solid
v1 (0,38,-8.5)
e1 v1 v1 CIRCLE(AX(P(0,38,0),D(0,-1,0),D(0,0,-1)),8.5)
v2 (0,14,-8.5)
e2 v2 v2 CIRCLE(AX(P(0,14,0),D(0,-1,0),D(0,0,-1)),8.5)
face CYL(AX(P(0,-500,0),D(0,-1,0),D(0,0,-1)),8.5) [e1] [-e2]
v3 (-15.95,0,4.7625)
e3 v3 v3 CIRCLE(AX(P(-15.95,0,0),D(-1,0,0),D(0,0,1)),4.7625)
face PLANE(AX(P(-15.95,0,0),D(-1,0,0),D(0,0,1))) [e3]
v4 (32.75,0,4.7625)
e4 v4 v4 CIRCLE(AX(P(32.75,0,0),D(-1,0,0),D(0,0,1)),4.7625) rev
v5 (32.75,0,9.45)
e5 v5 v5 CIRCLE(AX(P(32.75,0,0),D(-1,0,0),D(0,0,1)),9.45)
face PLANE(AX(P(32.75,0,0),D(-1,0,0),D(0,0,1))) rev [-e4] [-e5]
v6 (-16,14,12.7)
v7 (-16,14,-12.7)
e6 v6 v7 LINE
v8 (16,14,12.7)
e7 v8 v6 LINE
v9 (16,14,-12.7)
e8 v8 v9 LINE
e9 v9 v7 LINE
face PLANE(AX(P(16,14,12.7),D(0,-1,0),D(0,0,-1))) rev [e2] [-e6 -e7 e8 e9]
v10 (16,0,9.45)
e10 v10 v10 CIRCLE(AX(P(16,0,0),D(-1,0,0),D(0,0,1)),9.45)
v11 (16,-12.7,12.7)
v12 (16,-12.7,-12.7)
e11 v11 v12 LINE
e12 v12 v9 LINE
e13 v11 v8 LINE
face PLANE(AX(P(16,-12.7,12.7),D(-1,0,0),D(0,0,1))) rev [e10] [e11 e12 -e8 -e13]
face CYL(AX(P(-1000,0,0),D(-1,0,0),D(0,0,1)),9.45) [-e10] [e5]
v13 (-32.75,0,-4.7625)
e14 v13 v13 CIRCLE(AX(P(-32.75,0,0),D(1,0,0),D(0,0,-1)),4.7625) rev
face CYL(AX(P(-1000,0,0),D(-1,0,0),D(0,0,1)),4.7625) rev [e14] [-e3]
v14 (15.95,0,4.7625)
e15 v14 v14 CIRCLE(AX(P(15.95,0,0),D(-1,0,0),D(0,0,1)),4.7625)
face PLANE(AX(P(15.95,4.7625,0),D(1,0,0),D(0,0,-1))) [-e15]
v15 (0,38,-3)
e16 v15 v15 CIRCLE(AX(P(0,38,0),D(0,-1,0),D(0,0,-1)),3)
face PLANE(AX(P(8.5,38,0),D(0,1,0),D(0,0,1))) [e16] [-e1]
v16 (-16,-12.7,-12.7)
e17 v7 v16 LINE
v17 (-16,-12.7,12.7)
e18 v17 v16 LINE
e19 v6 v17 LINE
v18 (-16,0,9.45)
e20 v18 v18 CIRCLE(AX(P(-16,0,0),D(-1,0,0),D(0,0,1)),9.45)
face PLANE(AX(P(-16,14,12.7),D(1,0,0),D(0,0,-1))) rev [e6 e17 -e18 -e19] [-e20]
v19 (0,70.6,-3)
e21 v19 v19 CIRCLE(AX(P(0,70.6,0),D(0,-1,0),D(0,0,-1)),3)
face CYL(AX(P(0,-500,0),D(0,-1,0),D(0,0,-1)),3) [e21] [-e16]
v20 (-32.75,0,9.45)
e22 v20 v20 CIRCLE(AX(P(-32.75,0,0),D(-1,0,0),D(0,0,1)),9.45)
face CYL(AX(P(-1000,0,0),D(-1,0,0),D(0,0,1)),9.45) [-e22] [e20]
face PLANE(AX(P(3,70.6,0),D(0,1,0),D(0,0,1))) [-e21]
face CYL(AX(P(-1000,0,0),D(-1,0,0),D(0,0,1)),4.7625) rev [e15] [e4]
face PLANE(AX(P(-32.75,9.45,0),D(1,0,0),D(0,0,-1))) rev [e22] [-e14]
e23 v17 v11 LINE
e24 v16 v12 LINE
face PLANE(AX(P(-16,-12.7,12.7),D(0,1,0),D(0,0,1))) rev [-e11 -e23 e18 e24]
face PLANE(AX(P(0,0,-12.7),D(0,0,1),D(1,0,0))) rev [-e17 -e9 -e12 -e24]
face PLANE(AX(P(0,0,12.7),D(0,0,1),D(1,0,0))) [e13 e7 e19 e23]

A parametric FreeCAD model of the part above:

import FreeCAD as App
import Part
import Sketcher
Q = App.Units.Quantity

doc = App.newDocument("Part")
body = doc.addObject("PartDesign::Body", "Body")

sketch1 = body.newObject("Sketcher::SketchObject", "Sketch")
sketch1.AttachmentSupport = (doc.getObject("XY_Plane"), [""])
sketch1.MapMode = "FlatFace"
sketch1.addGeometry(Part.LineSegment(App.Vector(-16, 14, 0), App.Vector(-16, -13, 0)), False)
sketch1.addGeometry(Part.LineSegment(App.Vector(-16, -13, 0), App.Vector(16, -13, 0)), False)
sketch1.addGeometry(Part.LineSegment(App.Vector(16, -13, 0), App.Vector(16, 14, 0)), False)
sketch1.addGeometry(Part.LineSegment(App.Vector(16, 14, 0), App.Vector(-16, 14, 0)), False)
sketch1.addConstraint(Sketcher.Constraint("Coincident", 0, 2, 1, 1))
sketch1.addConstraint(Sketcher.Constraint("Coincident", 1, 2, 2, 1))
sketch1.addConstraint(Sketcher.Constraint("Coincident", 2, 2, 3, 1))
sketch1.addConstraint(Sketcher.Constraint("Coincident", 3, 2, 0, 1))
sketch1.addConstraint(Sketcher.Constraint("Vertical", 0))
sketch1.addConstraint(Sketcher.Constraint("Horizontal", 1))
sketch1.addConstraint(Sketcher.Constraint("Vertical", 2))
sketch1.addConstraint(Sketcher.Constraint("Horizontal", 3))
sketch1.addConstraint(Sketcher.Constraint("DistanceX", 1, 1, 1, 2, Q("32 mm")))
sketch1.addConstraint(Sketcher.Constraint("DistanceY", 0, 2, 0, 1, Q("26.7 mm")))
sketch1.addConstraint(Sketcher.Constraint("DistanceX", 0, 2, -1, 1, Q("16 mm")))
sketch1.addConstraint(Sketcher.Constraint("DistanceY", -1, 1, 2, 2, Q("14 mm")))
pad1 = body.newObject("PartDesign::Pad", "Pad")
pad1.Profile = sketch1
pad1.Length = 25.4
pad1.Midplane = True

sketch2 = body.newObject("Sketcher::SketchObject", "Sketch001")
sketch2.AttachmentSupport = (doc.getObject("XY_Plane"), [""])
sketch2.MapMode = "FlatFace"
sketch2.addGeometry(Part.LineSegment(App.Vector(16, 9, 0), App.Vector(16, 0, 0)), False)
sketch2.addGeometry(Part.LineSegment(App.Vector(16, 0, 0), App.Vector(33, 0, 0)), False)
sketch2.addGeometry(Part.LineSegment(App.Vector(33, 0, 0), App.Vector(33, 9, 0)), False)
sketch2.addGeometry(Part.LineSegment(App.Vector(33, 9, 0), App.Vector(16, 9, 0)), False)
sketch2.addConstraint(Sketcher.Constraint("Coincident", 0, 2, 1, 1))
sketch2.addConstraint(Sketcher.Constraint("Coincident", 1, 2, 2, 1))
sketch2.addConstraint(Sketcher.Constraint("Coincident", 2, 2, 3, 1))
sketch2.addConstraint(Sketcher.Constraint("Coincident", 3, 2, 0, 1))
sketch2.addConstraint(Sketcher.Constraint("Vertical", 0))
sketch2.addConstraint(Sketcher.Constraint("Horizontal", 1))
sketch2.addConstraint(Sketcher.Constraint("Vertical", 2))
sketch2.addConstraint(Sketcher.Constraint("Horizontal", 3))
sketch2.addConstraint(Sketcher.Constraint("PointOnObject", 0, 2, -1))
sketch2.addConstraint(Sketcher.Constraint("DistanceX", -1, 1, 0, 2, Q("16 mm")))
sketch2.addConstraint(Sketcher.Constraint("DistanceX", 1, 1, 1, 2, Q("16.75 mm")))
sketch2.addConstraint(Sketcher.Constraint("DistanceY", 0, 2, 0, 1, Q("9.45 mm")))
revolution = body.newObject("PartDesign::Revolution", "Revolution")
revolution.Profile = sketch2
revolution.ReferenceAxis = (sketch2, ["H_Axis"])
revolution.Angle = 360

sketch3 = body.newObject("Sketcher::SketchObject", "Sketch002")
sketch3.AttachmentSupport = (doc.getObject("XY_Plane"), [""])
sketch3.MapMode = "FlatFace"
sketch3.addGeometry(Part.LineSegment(App.Vector(-33, 9, 0), App.Vector(-33, 0, 0)), False)
sketch3.addGeometry(Part.LineSegment(App.Vector(-33, 0, 0), App.Vector(-16, 0, 0)), False)
sketch3.addGeometry(Part.LineSegment(App.Vector(-16, 0, 0), App.Vector(-16, 9, 0)), False)
sketch3.addGeometry(Part.LineSegment(App.Vector(-16, 9, 0), App.Vector(-33, 9, 0)), False)
sketch3.addConstraint(Sketcher.Constraint("Coincident", 0, 2, 1, 1))
sketch3.addConstraint(Sketcher.Constraint("Coincident", 1, 2, 2, 1))
sketch3.addConstraint(Sketcher.Constraint("Coincident", 2, 2, 3, 1))
sketch3.addConstraint(Sketcher.Constraint("Coincident", 3, 2, 0, 1))
sketch3.addConstraint(Sketcher.Constraint("Vertical", 0))
sketch3.addConstraint(Sketcher.Constraint("Horizontal", 1))
sketch3.addConstraint(Sketcher.Constraint("Vertical", 2))
sketch3.addConstraint(Sketcher.Constraint("Horizontal", 3))
sketch3.addConstraint(Sketcher.Constraint("PointOnObject", 0, 2, -1))
sketch3.addConstraint(Sketcher.Constraint("DistanceX", 1, 2, -1, 1, Q("16 mm")))
sketch3.addConstraint(Sketcher.Constraint("DistanceX", 1, 1, 1, 2, Q("16.75 mm")))
sketch3.addConstraint(Sketcher.Constraint("DistanceY", 0, 2, 0, 1, Q("9.45 mm")))
revolution2 = body.newObject("PartDesign::Revolution", "Revolution001")
revolution2.Profile = sketch3
revolution2.ReferenceAxis = (sketch3, ["H_Axis"])
revolution2.Angle = 360

sketch4 = body.newObject("Sketcher::SketchObject", "Sketch003")
sketch4.AttachmentSupport = (doc.getObject("XY_Plane"), [""])
sketch4.MapMode = "FlatFace"
sketch4.addGeometry(Part.LineSegment(App.Vector(15.9, 4.8, 0), App.Vector(15.9, 0, 0)), False)
sketch4.addGeometry(Part.LineSegment(App.Vector(15.9, 0, 0), App.Vector(33.8, 0, 0)), False)
sketch4.addGeometry(Part.LineSegment(App.Vector(33.8, 0, 0), App.Vector(33.8, 4.8, 0)), False)
sketch4.addGeometry(Part.LineSegment(App.Vector(33.8, 4.8, 0), App.Vector(15.9, 4.8, 0)), False)
sketch4.addConstraint(Sketcher.Constraint("Coincident", 0, 2, 1, 1))
sketch4.addConstraint(Sketcher.Constraint("Coincident", 1, 2, 2, 1))
sketch4.addConstraint(Sketcher.Constraint("Coincident", 2, 2, 3, 1))
sketch4.addConstraint(Sketcher.Constraint("Coincident", 3, 2, 0, 1))
sketch4.addConstraint(Sketcher.Constraint("Vertical", 0))
sketch4.addConstraint(Sketcher.Constraint("Horizontal", 1))
sketch4.addConstraint(Sketcher.Constraint("Vertical", 2))
sketch4.addConstraint(Sketcher.Constraint("Horizontal", 3))
sketch4.addConstraint(Sketcher.Constraint("PointOnObject", 0, 2, -1))
sketch4.addConstraint(Sketcher.Constraint("DistanceX", 1, 1, 1, 2, Q("17.8 mm")))
sketch4.addConstraint(Sketcher.Constraint("DistanceX", -1, 1, 0, 2, Q("15.95 mm")))
sketch4.addConstraint(Sketcher.Constraint("DistanceY", 0, 2, 0, 1, Q("4.7625 mm")))
groove = body.newObject("PartDesign::Groove", "Groove")
groove.Profile = sketch4
groove.ReferenceAxis = (sketch4, ["H_Axis"])
groove.Angle = 360

sketch5 = body.newObject("Sketcher::SketchObject", "Sketch004")
sketch5.AttachmentSupport = (doc.getObject("XY_Plane"), [""])
sketch5.MapMode = "FlatFace"
sketch5.addGeometry(Part.LineSegment(App.Vector(-33.8, 4.8, 0), App.Vector(-33.8, 0, 0)), False)
sketch5.addGeometry(Part.LineSegment(App.Vector(-33.8, 0, 0), App.Vector(-15.9, 0, 0)), False)
sketch5.addGeometry(Part.LineSegment(App.Vector(-15.9, 0, 0), App.Vector(-15.9, 4.8, 0)), False)
sketch5.addGeometry(Part.LineSegment(App.Vector(-15.9, 4.8, 0), App.Vector(-33.8, 4.8, 0)), False)
sketch5.addConstraint(Sketcher.Constraint("Coincident", 0, 2, 1, 1))
sketch5.addConstraint(Sketcher.Constraint("Coincident", 1, 2, 2, 1))
sketch5.addConstraint(Sketcher.Constraint("Coincident", 2, 2, 3, 1))
sketch5.addConstraint(Sketcher.Constraint("Coincident", 3, 2, 0, 1))
sketch5.addConstraint(Sketcher.Constraint("Vertical", 0))
sketch5.addConstraint(Sketcher.Constraint("Horizontal", 1))
sketch5.addConstraint(Sketcher.Constraint("Vertical", 2))
sketch5.addConstraint(Sketcher.Constraint("Horizontal", 3))
sketch5.addConstraint(Sketcher.Constraint("PointOnObject", 0, 2, -1))
sketch5.addConstraint(Sketcher.Constraint("DistanceX", 1, 1, 1, 2, Q("17.8 mm")))
sketch5.addConstraint(Sketcher.Constraint("DistanceX", 0, 2, -1, 1, Q("33.75 mm")))
sketch5.addConstraint(Sketcher.Constraint("DistanceY", 0, 2, 0, 1, Q("4.7625 mm")))
groove2 = body.newObject("PartDesign::Groove", "Groove001")
groove2.Profile = sketch5
groove2.ReferenceAxis = (sketch5, ["H_Axis"])
groove2.Angle = 360

sketch6 = body.newObject("Sketcher::SketchObject", "Sketch005")
sketch6.AttachmentSupport = (doc.getObject("XY_Plane"), [""])
sketch6.MapMode = "FlatFace"
sketch6.addGeometry(Part.LineSegment(App.Vector(0, 14, 0), App.Vector(8.5, 14, 0)), False)
sketch6.addGeometry(Part.LineSegment(App.Vector(8.5, 14, 0), App.Vector(8.5, 38, 0)), False)
sketch6.addGeometry(Part.LineSegment(App.Vector(8.5, 38, 0), App.Vector(3, 38, 0)), False)
sketch6.addGeometry(Part.LineSegment(App.Vector(3, 38, 0), App.Vector(3, 70.6, 0)), False)
sketch6.addGeometry(Part.LineSegment(App.Vector(3, 70.6, 0), App.Vector(0, 70.6, 0)), False)
sketch6.addGeometry(Part.LineSegment(App.Vector(0, 70.6, 0), App.Vector(0, 14, 0)), False)
sketch6.addConstraint(Sketcher.Constraint("Coincident", 0, 2, 1, 1))
sketch6.addConstraint(Sketcher.Constraint("Coincident", 1, 2, 2, 1))
sketch6.addConstraint(Sketcher.Constraint("Coincident", 2, 2, 3, 1))
sketch6.addConstraint(Sketcher.Constraint("Coincident", 3, 2, 4, 1))
sketch6.addConstraint(Sketcher.Constraint("Coincident", 4, 2, 5, 1))
sketch6.addConstraint(Sketcher.Constraint("Coincident", 5, 2, 0, 1))
sketch6.addConstraint(Sketcher.Constraint("Horizontal", 0))
sketch6.addConstraint(Sketcher.Constraint("Vertical", 1))
sketch6.addConstraint(Sketcher.Constraint("Horizontal", 2))
sketch6.addConstraint(Sketcher.Constraint("Vertical", 3))
sketch6.addConstraint(Sketcher.Constraint("Horizontal", 4))
sketch6.addConstraint(Sketcher.Constraint("Vertical", 5))
sketch6.addConstraint(Sketcher.Constraint("PointOnObject", 4, 2, -2))
sketch6.addConstraint(Sketcher.Constraint("DistanceX", 4, 2, 4, 1, Q("3 mm")))
sketch6.addConstraint(Sketcher.Constraint("DistanceY", 1, 1, 1, 2, Q("24 mm")))
sketch6.addConstraint(Sketcher.Constraint("DistanceX", 0, 1, 0, 2, Q("8.5 mm")))
sketch6.addConstraint(Sketcher.Constraint("DistanceY", 3, 1, 3, 2, Q("32.6 mm")))
sketch6.addConstraint(Sketcher.Constraint("DistanceY", -1, 1, 0, 2, Q("14 mm")))
revolution3 = body.newObject("PartDesign::Revolution", "Revolution002")
revolution3.Profile = sketch6
revolution3.ReferenceAxis = (sketch6, ["V_Axis"])
revolution3.Angle = 360

doc.recompute()
